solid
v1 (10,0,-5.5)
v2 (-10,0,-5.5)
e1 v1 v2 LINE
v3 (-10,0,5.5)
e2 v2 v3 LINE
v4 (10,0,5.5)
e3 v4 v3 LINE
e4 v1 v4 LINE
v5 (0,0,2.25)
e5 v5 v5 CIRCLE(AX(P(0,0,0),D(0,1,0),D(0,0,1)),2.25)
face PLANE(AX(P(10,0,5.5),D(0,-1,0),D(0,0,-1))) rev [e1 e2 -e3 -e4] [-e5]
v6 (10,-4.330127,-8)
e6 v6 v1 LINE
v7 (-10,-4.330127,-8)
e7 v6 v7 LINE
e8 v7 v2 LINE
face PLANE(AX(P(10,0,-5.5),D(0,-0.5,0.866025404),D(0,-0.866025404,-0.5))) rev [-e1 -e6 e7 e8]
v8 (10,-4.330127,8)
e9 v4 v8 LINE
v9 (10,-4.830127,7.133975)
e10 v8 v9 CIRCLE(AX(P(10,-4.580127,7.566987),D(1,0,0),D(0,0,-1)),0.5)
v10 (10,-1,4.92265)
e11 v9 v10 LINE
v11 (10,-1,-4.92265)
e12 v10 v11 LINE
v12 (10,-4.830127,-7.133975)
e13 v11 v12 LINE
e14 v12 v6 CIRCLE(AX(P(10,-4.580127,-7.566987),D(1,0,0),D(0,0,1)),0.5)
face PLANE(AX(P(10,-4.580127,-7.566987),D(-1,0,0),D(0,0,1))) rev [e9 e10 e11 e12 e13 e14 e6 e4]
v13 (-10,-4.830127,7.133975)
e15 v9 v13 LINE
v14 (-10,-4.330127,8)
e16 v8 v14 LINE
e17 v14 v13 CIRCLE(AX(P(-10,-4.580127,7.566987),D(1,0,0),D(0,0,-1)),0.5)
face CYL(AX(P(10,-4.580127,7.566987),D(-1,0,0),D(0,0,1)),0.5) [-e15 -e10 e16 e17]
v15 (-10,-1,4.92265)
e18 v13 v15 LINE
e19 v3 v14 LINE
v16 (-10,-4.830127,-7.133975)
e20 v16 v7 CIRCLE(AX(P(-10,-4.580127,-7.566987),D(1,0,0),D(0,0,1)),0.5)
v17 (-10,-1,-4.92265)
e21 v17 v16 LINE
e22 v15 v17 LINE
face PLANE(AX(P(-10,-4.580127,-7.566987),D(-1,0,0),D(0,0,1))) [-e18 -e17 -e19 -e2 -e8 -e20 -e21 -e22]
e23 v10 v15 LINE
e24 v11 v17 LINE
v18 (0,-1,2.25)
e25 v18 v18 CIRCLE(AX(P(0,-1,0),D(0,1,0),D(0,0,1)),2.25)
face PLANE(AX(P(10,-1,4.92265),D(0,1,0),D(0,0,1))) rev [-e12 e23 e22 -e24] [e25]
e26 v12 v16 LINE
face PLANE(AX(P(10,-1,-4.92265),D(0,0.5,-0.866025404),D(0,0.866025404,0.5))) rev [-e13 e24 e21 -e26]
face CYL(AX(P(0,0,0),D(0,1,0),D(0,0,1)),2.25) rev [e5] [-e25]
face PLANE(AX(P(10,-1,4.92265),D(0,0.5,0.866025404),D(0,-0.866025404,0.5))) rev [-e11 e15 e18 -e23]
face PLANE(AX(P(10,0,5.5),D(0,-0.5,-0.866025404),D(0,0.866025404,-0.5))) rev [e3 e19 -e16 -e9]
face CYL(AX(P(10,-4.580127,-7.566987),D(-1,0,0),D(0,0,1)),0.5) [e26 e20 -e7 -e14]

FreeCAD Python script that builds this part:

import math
import FreeCAD as App
import Part
import Sketcher
from FreeCAD import Vector
Q = App.Units.Quantity

doc = App.newDocument("Part")
body = doc.addObject("PartDesign::Body", "Body")

# Sketch on YZ plane
sketch1 = body.newObject("Sketcher::SketchObject", "Sketch")
sketch1.AttachmentSupport = (doc.getObject("YZ_Plane"), [""])
sketch1.MapMode = "FlatFace"
sketch1.addGeometry([
    Part.LineSegment(Vector(0, -5.5, 0), Vector(0, 5.5, 0)),  # 0
    Part.LineSegment(Vector(0, 5.5, 0), Vector(-4.3, 8, 0)),  # 1
    Part.ArcOfCircle(Part.Circle(Vector(-4.6, 7.6, 0), Vector(0, 0, 1), 0.5), math.radians(60), math.radians(240)),  # 2
    Part.LineSegment(Vector(-4.8, 7.1, 0), Vector(-1, 4.9, 0)),  # 3
    Part.LineSegment(Vector(-1, 4.9, 0), Vector(-1, -4.9, 0)),  # 4
    Part.LineSegment(Vector(-1, -4.9, 0), Vector(-4.8, -7.1, 0)),  # 5
    Part.ArcOfCircle(Part.Circle(Vector(-4.6, -7.6, 0), Vector(0, 0, 1), 0.5), math.radians(120), math.radians(300)),  # 6
    Part.LineSegment(Vector(-4.3, -8, 0), Vector(0, -5.5, 0)),  # 7
], False)
sketch1.addConstraint([
    Sketcher.Constraint("Coincident", 0, 2, 1, 1),
    Sketcher.Constraint("Tangent", 1, 2, 2, 1),
    Sketcher.Constraint("Tangent", 2, 2, 3, 1),
    Sketcher.Constraint("Coincident", 3, 2, 4, 1),
    Sketcher.Constraint("Coincident", 4, 2, 5, 1),
    Sketcher.Constraint("Tangent", 5, 2, 6, 1),
    Sketcher.Constraint("Tangent", 6, 2, 7, 1),
    Sketcher.Constraint("Coincident", 7, 2, 0, 1),
    Sketcher.Constraint("Vertical", 0),
    Sketcher.Constraint("Vertical", 4),
    Sketcher.Constraint("Equal", 2, 6),
    Sketcher.Constraint("Symmetric", 0, 2, 7, 2, -1, 1),
    Sketcher.Constraint("Symmetric", 2, 3, 6, 3, -1),
    Sketcher.Constraint("Parallel", 1, 3),
    Sketcher.Constraint("Parallel", 5, 7),
    Sketcher.Constraint("Radius", 2, Q("0.5 mm")),
    Sketcher.Constraint("DistanceY", 0, 1, 0, 2, Q("11 mm")),
    Sketcher.Constraint("Angle", 1, Q("150 deg")),
    Sketcher.Constraint("Distance", 1, Q("5 mm")),
    Sketcher.Constraint("DistanceX", 3, 2, -1, 1, Q("1 mm")),
])
pad1 = body.newObject("PartDesign::Pad", "Pad")
pad1.Profile = sketch1
pad1.Length = 20
pad1.Midplane = True

# Sketch on XZ plane
sketch2 = body.newObject("Sketcher::SketchObject", "Sketch001")
sketch2.AttachmentSupport = (doc.getObject("XZ_Plane"), [""])
sketch2.MapMode = "FlatFace"
sketch2.addGeometry(Part.Circle(Vector(0, 0, 0), Vector(0, 0, 1), 2.2), False)
sketch2.addConstraint([
    Sketcher.Constraint("Coincident", 0, 3, -1, 1),
    Sketcher.Constraint("Diameter", 0, Q("4.5 mm")),
])
doc.recompute()
hole = body.newObject("PartDesign::Hole", "Hole")
hole.Profile = sketch2
hole.ThreadType = "None"
hole.Diameter = 4.5
hole.DepthType = "ThroughAll"
hole.Reversed = True

doc.recompute()
